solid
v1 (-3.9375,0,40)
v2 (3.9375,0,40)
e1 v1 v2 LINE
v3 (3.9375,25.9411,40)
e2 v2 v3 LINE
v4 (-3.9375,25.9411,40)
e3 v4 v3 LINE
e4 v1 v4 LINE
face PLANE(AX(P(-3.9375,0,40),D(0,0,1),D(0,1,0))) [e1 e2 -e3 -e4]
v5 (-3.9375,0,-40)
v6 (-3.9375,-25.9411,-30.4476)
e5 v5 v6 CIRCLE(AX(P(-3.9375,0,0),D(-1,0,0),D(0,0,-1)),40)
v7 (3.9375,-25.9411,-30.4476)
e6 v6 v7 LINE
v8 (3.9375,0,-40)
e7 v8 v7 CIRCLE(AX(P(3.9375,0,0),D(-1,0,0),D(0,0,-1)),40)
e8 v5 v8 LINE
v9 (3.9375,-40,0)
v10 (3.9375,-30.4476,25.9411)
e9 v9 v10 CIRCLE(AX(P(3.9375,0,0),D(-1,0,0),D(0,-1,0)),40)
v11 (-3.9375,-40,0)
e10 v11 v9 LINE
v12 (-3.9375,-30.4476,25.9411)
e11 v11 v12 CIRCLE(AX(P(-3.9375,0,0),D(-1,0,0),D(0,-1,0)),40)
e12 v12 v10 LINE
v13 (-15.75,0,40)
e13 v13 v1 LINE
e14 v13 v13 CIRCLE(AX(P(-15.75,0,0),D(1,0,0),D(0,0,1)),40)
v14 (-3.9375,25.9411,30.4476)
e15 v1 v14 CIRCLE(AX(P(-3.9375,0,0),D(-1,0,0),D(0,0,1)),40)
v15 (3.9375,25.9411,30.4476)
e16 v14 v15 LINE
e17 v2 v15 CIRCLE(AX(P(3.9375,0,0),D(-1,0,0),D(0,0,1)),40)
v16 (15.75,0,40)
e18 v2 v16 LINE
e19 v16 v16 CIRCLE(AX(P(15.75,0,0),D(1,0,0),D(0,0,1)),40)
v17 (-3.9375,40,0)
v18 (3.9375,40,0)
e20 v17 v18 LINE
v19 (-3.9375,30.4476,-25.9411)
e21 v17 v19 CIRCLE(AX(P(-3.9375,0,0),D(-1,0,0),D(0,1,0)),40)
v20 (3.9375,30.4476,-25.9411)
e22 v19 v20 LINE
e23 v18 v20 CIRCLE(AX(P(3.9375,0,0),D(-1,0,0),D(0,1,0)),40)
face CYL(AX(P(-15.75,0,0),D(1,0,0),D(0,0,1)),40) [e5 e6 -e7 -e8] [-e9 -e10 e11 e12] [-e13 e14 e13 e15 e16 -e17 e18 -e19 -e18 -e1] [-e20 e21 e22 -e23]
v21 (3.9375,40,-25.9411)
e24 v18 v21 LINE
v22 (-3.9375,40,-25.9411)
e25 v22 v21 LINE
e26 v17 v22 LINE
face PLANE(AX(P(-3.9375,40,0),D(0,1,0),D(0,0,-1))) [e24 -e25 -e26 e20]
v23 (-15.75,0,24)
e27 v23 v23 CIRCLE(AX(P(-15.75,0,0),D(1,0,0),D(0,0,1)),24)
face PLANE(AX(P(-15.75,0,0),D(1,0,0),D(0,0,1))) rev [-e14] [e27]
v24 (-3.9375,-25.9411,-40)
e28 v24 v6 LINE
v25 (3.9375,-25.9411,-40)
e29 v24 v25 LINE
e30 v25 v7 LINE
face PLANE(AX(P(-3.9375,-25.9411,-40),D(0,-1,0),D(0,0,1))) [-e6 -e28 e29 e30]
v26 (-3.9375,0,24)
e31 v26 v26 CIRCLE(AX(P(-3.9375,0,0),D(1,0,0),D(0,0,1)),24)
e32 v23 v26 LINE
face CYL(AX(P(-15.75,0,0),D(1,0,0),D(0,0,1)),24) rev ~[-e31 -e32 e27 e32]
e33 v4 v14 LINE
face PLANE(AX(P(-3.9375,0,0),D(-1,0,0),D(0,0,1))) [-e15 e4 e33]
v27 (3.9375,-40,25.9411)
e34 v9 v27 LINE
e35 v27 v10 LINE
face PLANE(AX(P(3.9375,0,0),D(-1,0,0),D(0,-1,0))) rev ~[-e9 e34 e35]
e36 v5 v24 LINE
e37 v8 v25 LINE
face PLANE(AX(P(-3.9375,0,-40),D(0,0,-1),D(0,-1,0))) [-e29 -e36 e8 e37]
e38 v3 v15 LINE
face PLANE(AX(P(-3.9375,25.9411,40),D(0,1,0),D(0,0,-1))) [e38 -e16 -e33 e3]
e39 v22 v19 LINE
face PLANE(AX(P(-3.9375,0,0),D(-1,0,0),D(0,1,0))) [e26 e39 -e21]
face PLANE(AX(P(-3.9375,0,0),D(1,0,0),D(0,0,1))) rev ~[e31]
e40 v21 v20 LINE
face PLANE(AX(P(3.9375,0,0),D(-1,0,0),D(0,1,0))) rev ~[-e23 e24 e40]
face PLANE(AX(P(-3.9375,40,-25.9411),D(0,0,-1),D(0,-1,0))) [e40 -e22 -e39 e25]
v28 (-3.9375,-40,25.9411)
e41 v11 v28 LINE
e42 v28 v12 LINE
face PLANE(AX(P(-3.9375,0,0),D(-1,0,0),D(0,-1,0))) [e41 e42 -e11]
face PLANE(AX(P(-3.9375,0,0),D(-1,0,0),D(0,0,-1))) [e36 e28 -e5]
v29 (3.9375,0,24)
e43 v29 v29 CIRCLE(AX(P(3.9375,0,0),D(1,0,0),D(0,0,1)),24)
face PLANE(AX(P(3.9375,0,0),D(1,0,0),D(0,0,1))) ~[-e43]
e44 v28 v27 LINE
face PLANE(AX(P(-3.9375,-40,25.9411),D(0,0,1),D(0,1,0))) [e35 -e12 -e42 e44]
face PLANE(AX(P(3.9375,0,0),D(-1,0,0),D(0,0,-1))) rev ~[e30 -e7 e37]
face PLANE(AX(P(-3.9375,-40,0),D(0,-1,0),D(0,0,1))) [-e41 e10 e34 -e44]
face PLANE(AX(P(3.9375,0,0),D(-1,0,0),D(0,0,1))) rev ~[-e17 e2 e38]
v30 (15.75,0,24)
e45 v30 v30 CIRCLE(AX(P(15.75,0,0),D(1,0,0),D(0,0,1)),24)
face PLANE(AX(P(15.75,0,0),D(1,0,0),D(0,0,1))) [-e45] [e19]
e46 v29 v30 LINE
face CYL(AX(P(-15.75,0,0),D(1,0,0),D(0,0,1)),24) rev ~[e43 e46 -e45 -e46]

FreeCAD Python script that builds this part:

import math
import FreeCAD as App
import Part
import Sketcher
from FreeCAD import Vector

doc = App.newDocument("Part")
params = doc.addObject("Spreadsheet::Sheet", "Params")
for row, (alias, value) in enumerate([
    ("sketch1_width", "31.5 mm"),
    ("sketch1_height", "16 mm"),
    ("sketch1_height2", "24 mm"),
    ("revolution_angle", "360 deg"),
    ("sketch2_radius", "40 mm"),
    ("pad1_length", "7.875 mm"),
], start=1):
    params.set(f"A{row}", alias)
    params.set(f"B{row}", "=" + value)
    params.setAlias(f"B{row}", alias)

body = doc.addObject("PartDesign::Body", "Body")

# Sketch on XZ plane
sketch1 = body.newObject("Sketcher::SketchObject", "Sketch")
sketch1.AttachmentSupport = (doc.getObject("XZ_Plane"), [""])
sketch1.MapMode = "FlatFace"
sketch1.addGeometry([
    Part.LineSegment(Vector(-16, 24, 0), Vector(-16, 40, 0)),  # 0
    Part.LineSegment(Vector(-16, 40, 0), Vector(16, 40, 0)),  # 1
    Part.LineSegment(Vector(16, 40, 0), Vector(16, 24, 0)),  # 2
    Part.LineSegment(Vector(16, 24, 0), Vector(4, 24, 0)),  # 3
    Part.LineSegment(Vector(4, 24, 0), Vector(4, 0, 0)),  # 4
    Part.LineSegment(Vector(4, 0, 0), Vector(-4, 0, 0)),  # 5
    Part.LineSegment(Vector(-4, 0, 0), Vector(-4, 24, 0)),  # 6
    Part.LineSegment(Vector(-4, 24, 0), Vector(-16, 24, 0)),  # 7
], False)
sketch1.addConstraint([
    Sketcher.Constraint("Coincident", 0, 2, 1, 1),
    Sketcher.Constraint("Coincident", 1, 2, 2, 1),
    Sketcher.Constraint("Coincident", 2, 2, 3, 1),
    Sketcher.Constraint("Coincident", 3, 2, 4, 1),
    Sketcher.Constraint("Coincident", 4, 2, 5, 1),
    Sketcher.Constraint("Coincident", 5, 2, 6, 1),
    Sketcher.Constraint("Coincident", 6, 2, 7, 1),
    Sketcher.Constraint("Coincident", 7, 2, 0, 1),
    Sketcher.Constraint("Vertical", 0),
    Sketcher.Constraint("Horizontal", 1),
    Sketcher.Constraint("Vertical", 2),
    Sketcher.Constraint("Horizontal", 3),
    Sketcher.Constraint("Vertical", 4),
    Sketcher.Constraint("Horizontal", 5),
    Sketcher.Constraint("Vertical", 6),
    Sketcher.Constraint("Horizontal", 7),
    Sketcher.Constraint("Symmetric", 4, 2, 5, 2, -1, 1),
    Sketcher.Constraint("Symmetric", 2, 2, 7, 2, -2),
    Sketcher.Constraint("DistanceX", 1, 1, 1, 2, 31.5),
    Sketcher.Constraint("DistanceX", 5, 2, 5, 1, 7.875),
    Sketcher.Constraint("DistanceY", 0, 1, 0, 2, 16.0),
    Sketcher.Constraint("DistanceY", 4, 2, 4, 1, 24.0),
])
sketch1.setExpression("Constraints[18]", "Params.sketch1_width")
sketch1.setExpression("Constraints[20]", "Params.sketch1_height")
sketch1.setExpression("Constraints[21]", "Params.sketch1_height2")
revolution = body.newObject("PartDesign::Revolution", "Revolution")
revolution.Profile = sketch1
revolution.ReferenceAxis = (sketch1, ["H_Axis"])
revolution.setExpression("Angle", "Params.revolution_angle")

# Sketch on YZ plane
sketch2 = body.newObject("Sketcher::SketchObject", "Sketch001")
sketch2.AttachmentSupport = (doc.getObject("YZ_Plane"), [""])
sketch2.MapMode = "FlatFace"
sketch2.AttachmentOffset = App.Placement(Vector(0, 0, -3.9375), App.Rotation())
sketch2.addGeometry([
    Part.ArcOfCircle(Part.Circle(Vector(0, 0, 0), Vector(0, 0, 1), 40), math.radians(50), math.radians(90)),
    Part.LineSegment(Vector(0, 40, 0), Vector(26, 40, 0)),
    Part.LineSegment(Vector(26, 40, 0), Vector(26, 30, 0)),
], False)
sketch2.addConstraint([
    Sketcher.Constraint("Tangent", 0, 2, 1, 1),
    Sketcher.Constraint("Coincident", 1, 2, 2, 1),
    Sketcher.Constraint("Coincident", 2, 2, 0, 1),
    Sketcher.Constraint("Horizontal", 1),
    Sketcher.Constraint("Vertical", 2),
    Sketcher.Constraint("Coincident", 0, 3, -1, 1),
    Sketcher.Constraint("Radius", 0, 40.0),
    Sketcher.Constraint("DistanceX", 1, 1, 1, 2, 25.941),
])
sketch2.setExpression("Constraints[6]", "Params.sketch2_radius")
pad1 = body.newObject("PartDesign::Pad", "Pad")
pad1.Profile = sketch2
pad1.setExpression("Length", "Params.pad1_length")
doc.recompute()

polarpattern = body.newObject("PartDesign::PolarPattern", "PolarPattern")
polarpattern.Originals = [pad1]
polarpattern.Axis = (doc.getObject("X_Axis"), [""])
polarpattern.Angle = 360
polarpattern.Occurrences = 4
body.Tip = polarpattern

doc.recompute()
